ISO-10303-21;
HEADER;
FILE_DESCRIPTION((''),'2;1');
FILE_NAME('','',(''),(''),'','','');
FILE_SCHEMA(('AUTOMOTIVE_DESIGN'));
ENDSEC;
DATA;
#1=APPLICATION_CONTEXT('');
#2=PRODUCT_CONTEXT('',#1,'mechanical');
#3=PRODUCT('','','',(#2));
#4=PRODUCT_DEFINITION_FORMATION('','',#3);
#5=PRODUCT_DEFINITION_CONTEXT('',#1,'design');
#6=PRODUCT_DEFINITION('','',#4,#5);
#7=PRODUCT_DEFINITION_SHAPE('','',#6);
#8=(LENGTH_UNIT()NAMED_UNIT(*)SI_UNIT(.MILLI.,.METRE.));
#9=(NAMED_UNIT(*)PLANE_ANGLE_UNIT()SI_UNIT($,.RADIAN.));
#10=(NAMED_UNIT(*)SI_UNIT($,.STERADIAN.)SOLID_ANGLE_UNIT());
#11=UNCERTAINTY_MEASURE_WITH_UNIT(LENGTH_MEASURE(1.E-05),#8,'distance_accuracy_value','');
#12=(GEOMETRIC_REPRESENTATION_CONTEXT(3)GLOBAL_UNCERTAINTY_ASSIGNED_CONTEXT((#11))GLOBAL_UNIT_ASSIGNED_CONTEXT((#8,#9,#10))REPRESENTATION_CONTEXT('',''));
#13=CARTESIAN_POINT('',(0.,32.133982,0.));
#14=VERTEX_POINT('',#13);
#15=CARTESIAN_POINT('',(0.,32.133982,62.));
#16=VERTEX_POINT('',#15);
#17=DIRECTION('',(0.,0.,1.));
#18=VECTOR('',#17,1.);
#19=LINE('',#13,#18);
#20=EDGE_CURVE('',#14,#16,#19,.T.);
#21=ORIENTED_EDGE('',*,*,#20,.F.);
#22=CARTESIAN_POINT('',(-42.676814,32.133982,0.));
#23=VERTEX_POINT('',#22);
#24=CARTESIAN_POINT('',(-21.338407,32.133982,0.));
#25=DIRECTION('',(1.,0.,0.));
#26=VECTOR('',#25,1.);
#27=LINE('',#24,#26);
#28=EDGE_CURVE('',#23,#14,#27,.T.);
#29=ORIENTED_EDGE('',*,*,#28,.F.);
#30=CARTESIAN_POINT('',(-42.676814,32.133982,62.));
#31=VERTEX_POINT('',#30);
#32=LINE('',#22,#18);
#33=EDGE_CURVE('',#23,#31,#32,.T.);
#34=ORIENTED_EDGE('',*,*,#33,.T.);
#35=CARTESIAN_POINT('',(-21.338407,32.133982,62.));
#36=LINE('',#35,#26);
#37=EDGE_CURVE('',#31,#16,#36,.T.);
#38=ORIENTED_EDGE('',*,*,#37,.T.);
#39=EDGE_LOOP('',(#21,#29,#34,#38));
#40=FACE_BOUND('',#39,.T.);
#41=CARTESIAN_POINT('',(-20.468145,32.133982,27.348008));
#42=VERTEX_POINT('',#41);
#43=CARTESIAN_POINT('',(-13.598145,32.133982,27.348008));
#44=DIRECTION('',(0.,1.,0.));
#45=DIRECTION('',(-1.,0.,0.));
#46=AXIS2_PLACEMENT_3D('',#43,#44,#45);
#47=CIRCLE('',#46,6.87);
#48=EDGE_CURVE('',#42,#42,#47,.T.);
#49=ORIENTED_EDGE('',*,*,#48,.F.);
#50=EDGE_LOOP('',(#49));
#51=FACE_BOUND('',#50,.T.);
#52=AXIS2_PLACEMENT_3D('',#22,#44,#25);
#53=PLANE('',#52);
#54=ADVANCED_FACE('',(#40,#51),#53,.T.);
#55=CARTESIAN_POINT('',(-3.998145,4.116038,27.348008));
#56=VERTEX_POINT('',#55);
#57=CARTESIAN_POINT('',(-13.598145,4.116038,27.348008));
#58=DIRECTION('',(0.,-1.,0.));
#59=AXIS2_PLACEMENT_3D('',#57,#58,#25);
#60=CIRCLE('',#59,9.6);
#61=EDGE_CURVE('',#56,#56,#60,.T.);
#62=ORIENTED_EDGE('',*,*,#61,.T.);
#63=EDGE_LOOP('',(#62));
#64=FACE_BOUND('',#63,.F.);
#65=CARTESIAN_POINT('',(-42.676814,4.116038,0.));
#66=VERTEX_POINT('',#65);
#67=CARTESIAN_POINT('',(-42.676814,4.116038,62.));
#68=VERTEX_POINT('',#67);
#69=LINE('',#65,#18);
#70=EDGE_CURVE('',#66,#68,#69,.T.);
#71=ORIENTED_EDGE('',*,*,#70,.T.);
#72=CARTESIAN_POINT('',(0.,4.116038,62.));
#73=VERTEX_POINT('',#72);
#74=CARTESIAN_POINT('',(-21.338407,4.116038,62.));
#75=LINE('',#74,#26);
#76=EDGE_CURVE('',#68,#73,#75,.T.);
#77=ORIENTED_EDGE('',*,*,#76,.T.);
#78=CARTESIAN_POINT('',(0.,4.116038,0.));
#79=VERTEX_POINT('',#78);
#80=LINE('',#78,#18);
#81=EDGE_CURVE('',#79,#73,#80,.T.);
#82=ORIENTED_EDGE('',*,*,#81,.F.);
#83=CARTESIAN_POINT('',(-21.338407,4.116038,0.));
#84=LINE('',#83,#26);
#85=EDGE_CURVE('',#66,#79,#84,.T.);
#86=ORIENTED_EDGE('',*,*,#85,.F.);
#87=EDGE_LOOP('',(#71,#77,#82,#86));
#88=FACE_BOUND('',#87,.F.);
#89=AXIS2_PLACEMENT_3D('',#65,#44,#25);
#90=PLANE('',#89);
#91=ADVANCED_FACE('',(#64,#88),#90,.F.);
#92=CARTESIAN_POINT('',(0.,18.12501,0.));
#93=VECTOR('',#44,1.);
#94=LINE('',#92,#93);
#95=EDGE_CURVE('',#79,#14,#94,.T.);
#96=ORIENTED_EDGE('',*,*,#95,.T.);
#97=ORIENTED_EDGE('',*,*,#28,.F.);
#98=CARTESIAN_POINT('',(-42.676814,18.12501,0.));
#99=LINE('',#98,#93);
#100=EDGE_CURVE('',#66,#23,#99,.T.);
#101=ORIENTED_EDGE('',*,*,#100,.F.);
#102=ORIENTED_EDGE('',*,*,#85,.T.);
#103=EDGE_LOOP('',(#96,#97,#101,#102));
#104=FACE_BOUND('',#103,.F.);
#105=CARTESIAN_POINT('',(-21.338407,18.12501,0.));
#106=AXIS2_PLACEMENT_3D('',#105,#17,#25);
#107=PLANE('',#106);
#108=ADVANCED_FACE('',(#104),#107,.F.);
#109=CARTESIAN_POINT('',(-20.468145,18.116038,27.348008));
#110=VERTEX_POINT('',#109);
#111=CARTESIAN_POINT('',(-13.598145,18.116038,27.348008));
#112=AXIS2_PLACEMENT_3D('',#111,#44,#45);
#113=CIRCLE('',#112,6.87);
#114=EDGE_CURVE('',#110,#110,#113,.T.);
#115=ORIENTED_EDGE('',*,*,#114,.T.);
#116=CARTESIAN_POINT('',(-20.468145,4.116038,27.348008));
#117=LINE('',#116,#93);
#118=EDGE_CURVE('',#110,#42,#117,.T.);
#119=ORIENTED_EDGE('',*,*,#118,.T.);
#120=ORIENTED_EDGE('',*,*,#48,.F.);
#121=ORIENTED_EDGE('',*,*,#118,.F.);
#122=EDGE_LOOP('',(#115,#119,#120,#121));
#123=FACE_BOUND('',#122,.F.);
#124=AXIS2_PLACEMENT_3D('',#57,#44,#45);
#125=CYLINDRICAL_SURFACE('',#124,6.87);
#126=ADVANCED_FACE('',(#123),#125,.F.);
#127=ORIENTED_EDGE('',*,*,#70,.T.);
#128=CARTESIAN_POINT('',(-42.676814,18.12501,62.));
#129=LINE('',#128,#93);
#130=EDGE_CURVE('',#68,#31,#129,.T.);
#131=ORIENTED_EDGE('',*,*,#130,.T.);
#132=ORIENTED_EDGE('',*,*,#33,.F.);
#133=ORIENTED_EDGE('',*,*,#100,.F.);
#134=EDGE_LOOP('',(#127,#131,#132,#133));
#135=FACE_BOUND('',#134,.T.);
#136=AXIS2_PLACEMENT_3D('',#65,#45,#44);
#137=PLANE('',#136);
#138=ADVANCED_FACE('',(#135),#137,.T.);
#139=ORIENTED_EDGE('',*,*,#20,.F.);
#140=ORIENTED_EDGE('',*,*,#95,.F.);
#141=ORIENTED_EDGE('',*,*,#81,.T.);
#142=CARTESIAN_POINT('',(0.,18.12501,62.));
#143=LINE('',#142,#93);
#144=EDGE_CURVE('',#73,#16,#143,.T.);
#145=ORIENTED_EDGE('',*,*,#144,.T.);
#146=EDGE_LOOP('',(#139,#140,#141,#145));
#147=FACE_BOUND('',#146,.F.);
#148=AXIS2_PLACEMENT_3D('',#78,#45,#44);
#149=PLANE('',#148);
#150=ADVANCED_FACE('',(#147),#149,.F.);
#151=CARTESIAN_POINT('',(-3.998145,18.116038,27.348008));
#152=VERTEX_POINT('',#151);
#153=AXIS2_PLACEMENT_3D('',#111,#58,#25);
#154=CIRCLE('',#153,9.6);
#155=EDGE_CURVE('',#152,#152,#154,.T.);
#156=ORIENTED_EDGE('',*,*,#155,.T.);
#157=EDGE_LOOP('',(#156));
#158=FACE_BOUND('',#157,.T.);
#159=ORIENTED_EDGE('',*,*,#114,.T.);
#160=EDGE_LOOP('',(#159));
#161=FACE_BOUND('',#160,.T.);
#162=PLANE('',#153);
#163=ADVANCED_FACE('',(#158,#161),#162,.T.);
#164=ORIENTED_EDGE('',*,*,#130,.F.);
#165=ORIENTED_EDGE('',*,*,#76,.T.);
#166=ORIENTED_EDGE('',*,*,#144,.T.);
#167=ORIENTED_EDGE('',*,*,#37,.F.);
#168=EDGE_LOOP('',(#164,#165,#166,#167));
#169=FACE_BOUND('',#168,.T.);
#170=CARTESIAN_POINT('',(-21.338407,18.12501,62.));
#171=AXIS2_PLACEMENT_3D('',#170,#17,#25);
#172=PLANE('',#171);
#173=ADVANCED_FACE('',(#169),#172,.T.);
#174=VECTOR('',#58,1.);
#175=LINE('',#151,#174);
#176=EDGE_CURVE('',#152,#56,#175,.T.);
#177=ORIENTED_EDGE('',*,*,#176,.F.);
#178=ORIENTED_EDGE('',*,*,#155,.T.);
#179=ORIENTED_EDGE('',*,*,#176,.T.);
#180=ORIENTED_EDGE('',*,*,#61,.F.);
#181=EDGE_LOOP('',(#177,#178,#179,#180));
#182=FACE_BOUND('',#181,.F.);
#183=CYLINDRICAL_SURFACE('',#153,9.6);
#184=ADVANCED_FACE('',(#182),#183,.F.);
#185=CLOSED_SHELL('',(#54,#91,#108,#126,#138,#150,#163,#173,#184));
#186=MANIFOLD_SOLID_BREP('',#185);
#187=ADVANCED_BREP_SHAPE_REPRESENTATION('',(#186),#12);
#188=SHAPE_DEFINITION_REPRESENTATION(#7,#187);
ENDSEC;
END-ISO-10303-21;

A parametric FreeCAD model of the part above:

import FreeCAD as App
import Part
import Sketcher


def add_polygon(sketch, points):
    """Adds a closed chain of lines whose ends are joined by coincident constraints."""
    first, n = sketch.GeometryCount, len(points)
    for a, b in zip(points, points[1:] + points[:1]):
        sketch.addGeometry(Part.LineSegment(App.Vector(*a, 0), App.Vector(*b, 0)), False)
    for i in range(n):
        sketch.addConstraint(Sketcher.Constraint("Coincident", first + i, 2, first + (i + 1) % n, 1))

doc = App.newDocument("Part")
body = doc.addObject("PartDesign::Body", "Body")

sketch1 = doc.addObject("Sketcher::SketchObject", "Sketch")
body.addObject(sketch1)
sketch1.AttachmentSupport = (doc.XY_Plane, [""])
sketch1.MapMode = "FlatFace"
add_polygon(sketch1, [(-43, 32), (-43, 4), (0, 4), (0, 32)])
sketch1.addConstraint(Sketcher.Constraint("Vertical", 0))
sketch1.addConstraint(Sketcher.Constraint("Horizontal", 1))
sketch1.addConstraint(Sketcher.Constraint("Vertical", 2))
sketch1.addConstraint(Sketcher.Constraint("Horizontal", 3))
sketch1.addConstraint(Sketcher.Constraint("PointOnObject", 1, 2, -2))
sketch1.addConstraint(Sketcher.Constraint("DistanceX", 1, 1, 1, 2, 42.676814))
sketch1.addConstraint(Sketcher.Constraint("DistanceY", 0, 2, 0, 1, 28.017944))
sketch1.addConstraint(Sketcher.Constraint("DistanceY", -1, 1, 0, 2, 4.116038))
pad1 = doc.addObject("PartDesign::Pad", "Pad")
body.addObject(pad1)
pad1.Profile = sketch1
pad1.Length = 62

sketch2 = doc.addObject("Sketcher::SketchObject", "Sketch001")
body.addObject(sketch2)
sketch2.AttachmentSupport = (doc.XZ_Plane, [""])
sketch2.MapMode = "FlatFace"
sketch2.AttachmentOffset = App.Placement(App.Vector(0, 0, -4.116038), App.Rotation())
sketch2.addGeometry(Part.Circle(App.Vector(-14, 27, 0), App.Vector(0, 0, 1), 7), False)
sketch2.addConstraint(Sketcher.Constraint("Diameter", 0, 13.74))
sketch2.addConstraint(Sketcher.Constraint("DistanceY", -1, 1, 0, 3, 27.348008))
sketch2.addConstraint(Sketcher.Constraint("DistanceX", 0, 3, -1, 1, 13.598145))
doc.recompute()
hole = doc.addObject("PartDesign::Hole", "Hole")
body.addObject(hole)
hole.Profile = sketch2
hole.ThreadType = "None"
hole.Diameter = 13.74
hole.DepthType = "ThroughAll"
hole.HoleCutType = "Counterbore"
hole.HoleCutDiameter = 19.2
hole.HoleCutDepth = 14

doc.recompute()
